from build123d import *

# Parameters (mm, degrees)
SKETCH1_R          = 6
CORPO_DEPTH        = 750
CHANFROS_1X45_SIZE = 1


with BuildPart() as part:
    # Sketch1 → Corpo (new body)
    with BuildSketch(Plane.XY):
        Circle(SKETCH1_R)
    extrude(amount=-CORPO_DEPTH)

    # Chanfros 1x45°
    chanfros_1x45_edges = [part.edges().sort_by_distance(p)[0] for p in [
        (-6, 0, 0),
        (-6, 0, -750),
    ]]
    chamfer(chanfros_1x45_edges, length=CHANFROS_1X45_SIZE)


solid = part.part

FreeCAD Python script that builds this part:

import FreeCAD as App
import Part
import Sketcher

V = App.Vector


def edges_at(feature, points):
    """Names of the edges that pass closest to the given points."""
    edges = feature.Shape.Edges
    near = lambda p: min(range(len(edges)), key=lambda i: edges[i].distToShape(Part.Vertex(*p))[0])
    return sorted({f"Edge{near(p) + 1}" for p in points})

doc = App.newDocument("Part")
params = doc.addObject("Spreadsheet::Sheet", "Params")
for row, (alias, value) in enumerate([
    ("sketch1_diameter", "12 mm"),
    ("pad1_length", "750 mm"),
    ("chamfer_size", "1 mm"),
], start=1):
    params.set(f"A{row}", alias)
    params.set(f"B{row}", "=" + value)
    params.setAlias(f"B{row}", alias)

body = doc.addObject("PartDesign::Body", "Body")

# Sketch on XY plane
sketch1 = doc.addObject("Sketcher::SketchObject", "Sketch")
body.addObject(sketch1)
sketch1.AttachmentSupport = (doc.XY_Plane, [""])
sketch1.MapMode = "FlatFace"
sketch1.addGeometry(Part.Circle(V(0, 0, 0), V(0, 0, 1), 6), False)
sketch1.addConstraint(Sketcher.Constraint("Coincident", 0, 3, -1, 1))
sketch1.addConstraint(Sketcher.Constraint("Diameter", 0, 12.0))
sketch1.setExpression("Constraints[1]", "Params.sketch1_diameter")
pad1 = doc.addObject("PartDesign::Pad", "Pad")
body.addObject(pad1)
pad1.Profile = sketch1
pad1.setExpression("Length", "Params.pad1_length")
pad1.Reversed = True
doc.recompute()

chamfer = doc.addObject("PartDesign::Chamfer", "Chamfer")
body.addObject(chamfer)
chamfer.Base = (pad1, edges_at(pad1, [(-6, 0, 0), (-6, 0, -750)]))
chamfer.setExpression("Size", "Params.chamfer_size")

doc.recompute()
